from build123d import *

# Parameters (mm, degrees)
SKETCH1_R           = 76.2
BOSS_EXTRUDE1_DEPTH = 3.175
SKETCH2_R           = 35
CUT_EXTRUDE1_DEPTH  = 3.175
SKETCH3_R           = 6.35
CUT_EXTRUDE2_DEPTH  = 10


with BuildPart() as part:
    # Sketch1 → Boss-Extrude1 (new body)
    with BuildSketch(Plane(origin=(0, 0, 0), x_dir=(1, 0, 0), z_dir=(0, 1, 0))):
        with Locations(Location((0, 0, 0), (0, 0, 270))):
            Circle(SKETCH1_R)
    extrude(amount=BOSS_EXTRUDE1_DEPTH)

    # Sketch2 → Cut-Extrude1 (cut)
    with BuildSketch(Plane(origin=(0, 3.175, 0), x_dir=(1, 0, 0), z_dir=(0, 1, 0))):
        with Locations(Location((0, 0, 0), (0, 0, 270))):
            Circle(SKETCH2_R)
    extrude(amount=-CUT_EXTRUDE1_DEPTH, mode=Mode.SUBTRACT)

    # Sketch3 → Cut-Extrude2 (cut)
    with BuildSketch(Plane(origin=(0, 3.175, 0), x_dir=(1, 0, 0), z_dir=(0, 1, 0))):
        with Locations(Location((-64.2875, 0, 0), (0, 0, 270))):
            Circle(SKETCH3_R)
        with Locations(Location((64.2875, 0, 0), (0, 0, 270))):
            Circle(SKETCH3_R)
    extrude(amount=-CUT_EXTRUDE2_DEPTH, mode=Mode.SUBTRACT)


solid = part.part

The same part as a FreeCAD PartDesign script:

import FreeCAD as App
import Part
import Sketcher
from FreeCAD import Vector
Q = App.Units.Quantity

doc = App.newDocument("Part")
params = doc.addObject("Spreadsheet::Sheet", "Params")
for row, (alias, value) in enumerate([
    ("sketch1_diameter", "6 in"),
    ("pad1_length", "0.125 in"),
    ("pocket1_length", "0.125 in"),
    ("sketch3_diameter", "0.5 in"),
    ("pocket2_length", "10 mm"),
], start=1):
    params.set(f"A{row}", alias)
    params.set(f"B{row}", "=" + value)
    params.setAlias(f"B{row}", alias)

body = doc.addObject("PartDesign::Body", "Body")

# Sketch on XZ plane
sketch1 = body.newObject("Sketcher::SketchObject", "Sketch")
sketch1.AttachmentSupport = (doc.getObject("XZ_Plane"), [""])
sketch1.MapMode = "FlatFace"
sketch1.addGeometry(Part.Circle(Vector(0, 0, 0), Vector(0, 0, 1), 76), False)
sketch1.addConstraint(Sketcher.Constraint("Coincident", 0, 3, -1, 1))
sketch1.addConstraint(Sketcher.Constraint("Diameter", 0, Q("6 in")))
sketch1.setExpression("Constraints[1]", "Params.sketch1_diameter")
pad1 = body.newObject("PartDesign::Pad", "Pad")
pad1.Profile = sketch1
pad1.setExpression("Length", "Params.pad1_length")
pad1.Reversed = True

# Sketch on XZ plane
sketch2 = body.newObject("Sketcher::SketchObject", "Sketch001")
sketch2.AttachmentSupport = (doc.getObject("XZ_Plane"), [""])
sketch2.MapMode = "FlatFace"
sketch2.AttachmentOffset = App.Placement(Vector(0, 0, -0.125 * 25.4), App.Rotation())
sketch2.addGeometry(Part.Circle(Vector(0, 0, 0), Vector(0, 0, 1), 35), False)
sketch2.addConstraint(Sketcher.Constraint("Coincident", 0, 3, -1, 1))
sketch2.addConstraint(Sketcher.Constraint("Diameter", 0, 70.0))
pocket1 = body.newObject("PartDesign::Pocket", "Pocket")
pocket1.Profile = sketch2
pocket1.setExpression("Length", "Params.pocket1_length")
pocket1.Reversed = True

# Sketch on XZ plane
sketch3 = body.newObject("Sketcher::SketchObject", "Sketch002")
sketch3.AttachmentSupport = (doc.getObject("XZ_Plane"), [""])
sketch3.MapMode = "FlatFace"
sketch3.AttachmentOffset = App.Placement(Vector(0, 0, -0.125 * 25.4), App.Rotation())
sketch3.addGeometry(Part.Circle(Vector(-64, 0, 0), Vector(0, 0, 1), 6), False)
sketch3.addGeometry(Part.Circle(Vector(64, 0, 0), Vector(0, 0, 1), 6), False)
sketch3.addConstraint(Sketcher.Constraint("Equal", 0, 1))
sketch3.addConstraint(Sketcher.Constraint("Symmetric", 0, 3, 1, 3, -1, 1))
sketch3.addConstraint(Sketcher.Constraint("PointOnObject", 0, 3, -1))
sketch3.addConstraint(Sketcher.Constraint("Diameter", 0, Q("0.5 in")))
sketch3.addConstraint(Sketcher.Constraint("DistanceX", 0, 3, -1, 1, 64.2875))
sketch3.setExpression("Constraints[3]", "Params.sketch3_diameter")
pocket2 = body.newObject("PartDesign::Pocket", "Pocket001")
pocket2.Profile = sketch3
pocket2.setExpression("Length", "Params.pocket2_length")
pocket2.Reversed = True

doc.recompute()
